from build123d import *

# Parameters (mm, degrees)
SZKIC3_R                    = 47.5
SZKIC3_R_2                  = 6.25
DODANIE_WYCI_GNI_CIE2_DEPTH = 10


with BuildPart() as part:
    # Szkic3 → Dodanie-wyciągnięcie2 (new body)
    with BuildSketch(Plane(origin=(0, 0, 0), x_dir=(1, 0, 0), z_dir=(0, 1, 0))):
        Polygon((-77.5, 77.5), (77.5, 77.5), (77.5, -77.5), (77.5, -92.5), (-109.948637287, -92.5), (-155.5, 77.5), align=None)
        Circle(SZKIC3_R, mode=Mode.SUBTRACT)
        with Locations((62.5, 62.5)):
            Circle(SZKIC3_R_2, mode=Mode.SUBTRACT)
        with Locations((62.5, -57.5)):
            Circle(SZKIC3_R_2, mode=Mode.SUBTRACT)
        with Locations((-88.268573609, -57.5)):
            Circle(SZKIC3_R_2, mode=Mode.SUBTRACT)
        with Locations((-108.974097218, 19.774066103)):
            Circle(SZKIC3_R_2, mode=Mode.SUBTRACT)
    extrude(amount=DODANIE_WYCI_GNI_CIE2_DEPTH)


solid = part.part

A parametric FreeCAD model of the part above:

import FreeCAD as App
import Part
import Sketcher
Q = App.Units.Quantity


def add_polygon(sketch, points):
    """Adds a closed chain of lines whose ends are joined by coincident constraints."""
    first, n = sketch.GeometryCount, len(points)
    for a, b in zip(points, points[1:] + points[:1]):
        sketch.addGeometry(Part.LineSegment(App.Vector(*a, 0), App.Vector(*b, 0)), False)
    for i in range(n):
        sketch.addConstraint(Sketcher.Constraint("Coincident", first + i, 2, first + (i + 1) % n, 1))

doc = App.newDocument("Part")
body = doc.addObject("PartDesign::Body", "Body")

# Sketch on XZ plane
sketch1 = body.newObject("Sketcher::SketchObject", "Sketch")
sketch1.AttachmentSupport = (doc.getObject("XZ_Plane"), [""])
sketch1.MapMode = "FlatFace"
add_polygon(sketch1, [(78, -78), (-156, -78), (-110, 92), (78, 92)])  # lines 0-3
sketch1.addGeometry(Part.Circle(App.Vector(62, 58, 0), App.Vector(0, 0, 1), 6), False)  # 4
sketch1.addGeometry(Part.Circle(App.Vector(0, 0, 0), App.Vector(0, 0, 1), 48), False)  # 5
sketch1.addGeometry(Part.Circle(App.Vector(-88, 58, 0), App.Vector(0, 0, 1), 6), False)  # 6
sketch1.addGeometry(Part.Circle(App.Vector(62, -62, 0), App.Vector(0, 0, 1), 6), False)  # 7
sketch1.addGeometry(Part.Circle(App.Vector(-109, -20, 0), App.Vector(0, 0, 1), 6), False)  # 8
sketch1.addConstraint(Sketcher.Constraint("Horizontal", 0))
sketch1.addConstraint(Sketcher.Constraint("Horizontal", 2))
sketch1.addConstraint(Sketcher.Constraint("Vertical", 3))
sketch1.addConstraint(Sketcher.Constraint("Coincident", 5, 3, -1, 1))
sketch1.addConstraint(Sketcher.Constraint("Equal", 4, 6))
sketch1.addConstraint(Sketcher.Constraint("Equal", 6, 7))
sketch1.addConstraint(Sketcher.Constraint("Equal", 7, 8))
sketch1.addConstraint(Sketcher.Constraint("Horizontal", 4, 3, 6, 3))
sketch1.addConstraint(Sketcher.Constraint("Vertical", 4, 3, 7, 3))
sketch1.addConstraint(Sketcher.Constraint("Diameter", 5, 95.0))
sketch1.addConstraint(Sketcher.Constraint("Diameter", 4, 12.5))
sketch1.addConstraint(Sketcher.Constraint("DistanceX", 0, 2, 0, 1, 233.0))
sketch1.addConstraint(Sketcher.Constraint("DistanceY", 3, 2, 3, 1, 170.0))
sketch1.addConstraint(Sketcher.Constraint("Angle", 1, Q("75 deg")))
sketch1.addConstraint(Sketcher.Constraint("DistanceY", 7, 3, 4, 3, 120.0))
sketch1.addConstraint(Sketcher.Constraint("DistanceY", 0, 2, 6, 3, 135.0))
sketch1.addConstraint(Sketcher.Constraint("DistanceX", 0, 2, 7, 3, 218.0))
sketch1.addConstraint(Sketcher.Constraint("DistanceX", -1, 1, 4, 3, 62.5))
sketch1.addConstraint(Sketcher.Constraint("DistanceY", -1, 1, 4, 3, 57.5))
sketch1.addConstraint(Sketcher.Constraint("DistanceX", 1, 2, 8, 3, 0.97454))
sketch1.addConstraint(Sketcher.Constraint("DistanceX", 6, 3, -1, 1, 88.268574))
sketch1.addConstraint(Sketcher.Constraint("DistanceY", 8, 3, -1, 1, 19.774066))
pad1 = body.newObject("PartDesign::Pad", "Pad")
pad1.Profile = sketch1
pad1.Length = 10
pad1.Reversed = True

doc.recompute()
